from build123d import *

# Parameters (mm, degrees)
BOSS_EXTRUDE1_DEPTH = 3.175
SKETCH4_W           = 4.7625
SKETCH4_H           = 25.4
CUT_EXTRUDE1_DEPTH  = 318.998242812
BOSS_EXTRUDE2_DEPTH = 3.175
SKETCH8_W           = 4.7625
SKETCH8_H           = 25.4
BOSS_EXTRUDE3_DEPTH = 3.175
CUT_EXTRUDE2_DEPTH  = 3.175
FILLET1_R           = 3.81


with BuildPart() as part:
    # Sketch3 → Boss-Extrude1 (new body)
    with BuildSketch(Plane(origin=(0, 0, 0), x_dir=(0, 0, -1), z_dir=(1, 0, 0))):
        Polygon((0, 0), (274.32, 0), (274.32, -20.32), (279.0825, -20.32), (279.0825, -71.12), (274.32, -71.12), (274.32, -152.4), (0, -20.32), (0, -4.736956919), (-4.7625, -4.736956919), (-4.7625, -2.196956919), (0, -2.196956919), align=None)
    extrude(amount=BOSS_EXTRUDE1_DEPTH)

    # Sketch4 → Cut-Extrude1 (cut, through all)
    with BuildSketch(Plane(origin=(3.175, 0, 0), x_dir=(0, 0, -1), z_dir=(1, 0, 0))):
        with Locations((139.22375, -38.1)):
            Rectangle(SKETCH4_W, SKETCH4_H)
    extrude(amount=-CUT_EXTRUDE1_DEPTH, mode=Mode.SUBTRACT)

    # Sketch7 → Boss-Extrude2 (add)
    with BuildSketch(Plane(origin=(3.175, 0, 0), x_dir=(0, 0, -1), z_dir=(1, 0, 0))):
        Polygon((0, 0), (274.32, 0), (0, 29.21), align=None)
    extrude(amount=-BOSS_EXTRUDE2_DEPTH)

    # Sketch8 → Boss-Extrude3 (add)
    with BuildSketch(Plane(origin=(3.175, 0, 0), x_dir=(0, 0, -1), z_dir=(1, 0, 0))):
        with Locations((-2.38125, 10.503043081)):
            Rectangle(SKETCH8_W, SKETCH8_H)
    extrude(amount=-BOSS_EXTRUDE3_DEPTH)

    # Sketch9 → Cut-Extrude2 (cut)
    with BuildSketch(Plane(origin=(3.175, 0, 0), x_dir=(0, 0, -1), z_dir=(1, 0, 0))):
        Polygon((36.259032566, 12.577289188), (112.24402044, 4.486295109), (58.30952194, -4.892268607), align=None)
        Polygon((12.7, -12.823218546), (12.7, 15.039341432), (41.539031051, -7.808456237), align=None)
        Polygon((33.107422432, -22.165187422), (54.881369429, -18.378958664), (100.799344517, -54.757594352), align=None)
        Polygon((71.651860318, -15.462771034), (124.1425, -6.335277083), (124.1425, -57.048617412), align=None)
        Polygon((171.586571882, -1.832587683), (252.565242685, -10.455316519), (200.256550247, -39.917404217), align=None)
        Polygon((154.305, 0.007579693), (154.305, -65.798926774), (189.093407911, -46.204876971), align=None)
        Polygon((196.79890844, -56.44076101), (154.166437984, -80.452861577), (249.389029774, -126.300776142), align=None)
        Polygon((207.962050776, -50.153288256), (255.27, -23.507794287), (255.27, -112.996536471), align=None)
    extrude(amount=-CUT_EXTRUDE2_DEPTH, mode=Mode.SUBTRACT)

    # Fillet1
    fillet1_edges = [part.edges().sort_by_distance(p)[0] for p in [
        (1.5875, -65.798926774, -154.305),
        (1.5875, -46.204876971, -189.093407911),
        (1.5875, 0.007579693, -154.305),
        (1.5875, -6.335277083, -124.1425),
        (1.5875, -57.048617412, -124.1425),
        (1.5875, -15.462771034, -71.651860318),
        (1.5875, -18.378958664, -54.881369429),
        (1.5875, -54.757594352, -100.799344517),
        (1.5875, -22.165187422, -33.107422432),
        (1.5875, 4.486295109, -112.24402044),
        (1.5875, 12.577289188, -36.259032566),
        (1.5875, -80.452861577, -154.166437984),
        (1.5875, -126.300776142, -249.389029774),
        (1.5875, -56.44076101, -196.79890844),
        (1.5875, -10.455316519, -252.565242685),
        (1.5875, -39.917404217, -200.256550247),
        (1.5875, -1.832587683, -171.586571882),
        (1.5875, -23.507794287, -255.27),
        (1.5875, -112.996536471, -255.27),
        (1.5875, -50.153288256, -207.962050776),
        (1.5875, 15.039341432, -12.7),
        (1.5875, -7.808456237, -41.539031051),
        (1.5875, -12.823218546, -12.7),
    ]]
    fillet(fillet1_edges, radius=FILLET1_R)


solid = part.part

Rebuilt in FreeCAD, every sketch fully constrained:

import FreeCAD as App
import Part
import Sketcher
Q = App.Units.Quantity


def edges_at(feature, points):
    """Names of the edges that pass closest to the given points."""
    edges = feature.Shape.Edges
    near = lambda p: min(range(len(edges)), key=lambda i: edges[i].distToShape(Part.Vertex(*p))[0])
    return sorted({f"Edge{near(p) + 1}" for p in points})


def add_polygon(sketch, points):
    """Adds a closed chain of lines whose ends are joined by coincident constraints."""
    first, n = sketch.GeometryCount, len(points)
    for a, b in zip(points, points[1:] + points[:1]):
        sketch.addGeometry(Part.LineSegment(App.Vector(*a, 0), App.Vector(*b, 0)), False)
    for i in range(n):
        sketch.addConstraint(Sketcher.Constraint("Coincident", first + i, 2, first + (i + 1) % n, 1))

doc = App.newDocument("Part")
body = doc.addObject("PartDesign::Body", "Body")

# Sketch on YZ plane
sketch1 = body.newObject("Sketcher::SketchObject", "Sketch")
sketch1.AttachmentSupport = (doc.getObject("YZ_Plane"), [""])
sketch1.MapMode = "FlatFace"
add_polygon(sketch1, [(0, -274.3), (0, 0), (-2.2, 0), (-2.2, 4.8), (-4.7, 4.8), (-4.7, 0), (-20.3, 0), (-152.4, -274.3), (-71.1, -274.3), (-71.1, -279.1), (-20.3, -279.1), (-20.3, -274.3)])  # lines 0-11
sketch1.addConstraint([
    Sketcher.Constraint("Vertical", 0),
    Sketcher.Constraint("Horizontal", 1),
    Sketcher.Constraint("Vertical", 2),
    Sketcher.Constraint("Horizontal", 3),
    Sketcher.Constraint("Vertical", 4),
    Sketcher.Constraint("Horizontal", 5),
    Sketcher.Constraint("Horizontal", 7),
    Sketcher.Constraint("Vertical", 8),
    Sketcher.Constraint("Horizontal", 9),
    Sketcher.Constraint("Vertical", 10),
    Sketcher.Constraint("Horizontal", 11),
    Sketcher.Constraint("Coincident", 0, 2, -1, 1),
    Sketcher.Constraint("PointOnObject", 4, 2, -1),
    Sketcher.Constraint("Horizontal", 7, 2, 10, 2),
    Sketcher.Constraint("Vertical", 5, 2, 9, 2),
    Sketcher.Constraint("Equal", 4, 8),
    Sketcher.Constraint("DistanceX", 9, 1, 9, 2, Q("2 in")),
    Sketcher.Constraint("DistanceX", 3, 2, 3, 1, Q("0.1 in")),
    Sketcher.Constraint("DistanceX", 7, 1, 7, 2, Q("3.2 in")),
    Sketcher.Constraint("DistanceX", 11, 1, 11, 2, Q("0.8 in")),
    Sketcher.Constraint("DistanceY", 0, 1, 0, 2, Q("10.8 in")),
    Sketcher.Constraint("DistanceY", 2, 1, 2, 2, Q("0.1875 in")),
    Sketcher.Constraint("DistanceX", 1, 2, 1, 1, 2.196957),
])
pad1 = body.newObject("PartDesign::Pad", "Pad")
pad1.Profile = sketch1
pad1.Length = Q("0.125 in")

# Sketch on YZ plane
sketch2 = body.newObject("Sketcher::SketchObject", "Sketch001")
sketch2.AttachmentSupport = (doc.getObject("YZ_Plane"), [""])
sketch2.MapMode = "FlatFace"
sketch2.AttachmentOffset = App.Placement(App.Vector(0, 0, 0.125 * 25.4), App.Rotation())
add_polygon(sketch2, [(-25.4, -136.8), (-50.8, -136.8), (-50.8, -141.6), (-25.4, -141.6)])  # lines 0-3
sketch2.addConstraint([
    Sketcher.Constraint("Horizontal", 0),
    Sketcher.Constraint("Vertical", 1),
    Sketcher.Constraint("Horizontal", 2),
    Sketcher.Constraint("Vertical", 3),
    Sketcher.Constraint("DistanceX", 0, 2, 0, 1, Q("1 in")),
    Sketcher.Constraint("DistanceX", 0, 2, -1, 1, Q("2 in")),
    Sketcher.Constraint("DistanceY", 1, 2, 1, 1, Q("0.1875 in")),
    Sketcher.Constraint("DistanceY", 1, 2, -1, 1, Q("5.575 in")),
])
pocket1 = body.newObject("PartDesign::Pocket", "Pocket")
pocket1.Profile = sketch2
pocket1.Type = "ThroughAll"

# Sketch on YZ plane
sketch3 = body.newObject("Sketcher::SketchObject", "Sketch002")
sketch3.AttachmentSupport = (doc.getObject("YZ_Plane"), [""])
sketch3.MapMode = "FlatFace"
sketch3.AttachmentOffset = App.Placement(App.Vector(0, 0, 0.125 * 25.4), App.Rotation())
add_polygon(sketch3, [(0, 0), (0, -274), (29, 0)])  # lines 0-2
sketch3.addConstraint([
    Sketcher.Constraint("Vertical", 0),
    Sketcher.Constraint("Horizontal", 2),
    Sketcher.Constraint("Coincident", 2, 2, -1, 1),
    Sketcher.Constraint("DistanceY", 0, 2, 0, 1, Q("10.8 in")),
    Sketcher.Constraint("DistanceX", 2, 2, 2, 1, Q("1.15 in")),
])
pad2 = body.newObject("PartDesign::Pad", "Pad001")
pad2.Profile = sketch3
pad2.Length = Q("0.125 in")
pad2.Reversed = True

# Sketch on YZ plane
sketch4 = body.newObject("Sketcher::SketchObject", "Sketch003")
sketch4.AttachmentSupport = (doc.getObject("YZ_Plane"), [""])
sketch4.MapMode = "FlatFace"
sketch4.AttachmentOffset = App.Placement(App.Vector(0, 0, 0.125 * 25.4), App.Rotation())
add_polygon(sketch4, [(23.2, 4.8), (-2.2, 4.8), (-2.2, 0), (23.2, 0)])  # lines 0-3
sketch4.addConstraint([
    Sketcher.Constraint("Horizontal", 0),
    Sketcher.Constraint("Vertical", 1),
    Sketcher.Constraint("Horizontal", 2),
    Sketcher.Constraint("Vertical", 3),
    Sketcher.Constraint("PointOnObject", 1, 2, -1),
    Sketcher.Constraint("DistanceX", 0, 2, 0, 1, Q("1 in")),
    Sketcher.Constraint("DistanceY", 1, 2, 1, 1, Q("0.1875 in")),
    Sketcher.Constraint("DistanceX", 0, 2, -1, 1, 2.196957),
])
pad3 = body.newObject("PartDesign::Pad", "Pad002")
pad3.Profile = sketch4
pad3.Length = Q("0.125 in")
pad3.Reversed = True

# Sketch on YZ plane
sketch5 = body.newObject("Sketcher::SketchObject", "Sketch004")
sketch5.AttachmentSupport = (doc.getObject("YZ_Plane"), [""])
sketch5.MapMode = "FlatFace"
sketch5.AttachmentOffset = App.Placement(App.Vector(0, 0, 0.125 * 25.4), App.Rotation())
add_polygon(sketch5, [(4, -112), (13, -36), (-5, -58)])  # lines 0-2
add_polygon(sketch5, [(15, -13), (-13, -13), (-8, -42)])  # lines 3-5
add_polygon(sketch5, [(-18, -55), (-22, -33), (-55, -101)])  # lines 6-8
add_polygon(sketch5, [(-6, -124), (-15, -72), (-57, -124)])  # lines 9-11
add_polygon(sketch5, [(-10, -253), (-2, -172), (-40, -200)])  # lines 12-14
add_polygon(sketch5, [(0, -154), (-66, -154), (-46, -189)])  # lines 15-17
add_polygon(sketch5, [(-56, -197), (-80, -154), (-126, -249)])  # lines 18-20
add_polygon(sketch5, [(-24, -255), (-50, -208), (-113, -255)])  # lines 21-23
sketch5.addConstraint([
    Sketcher.Constraint("Horizontal", 3),
    Sketcher.Constraint("Horizontal", 11),
    Sketcher.Constraint("Horizontal", 15),
    Sketcher.Constraint("Horizontal", 23),
    Sketcher.Constraint("Parallel", 2, 4),
    Sketcher.Constraint("Parallel", 1, 5),
    Sketcher.Constraint("Parallel", 4, 6),
    Sketcher.Constraint("Parallel", 5, 8),
    Sketcher.Constraint("Parallel", 6, 9),
    Sketcher.Constraint("Parallel", 8, 10),
    Sketcher.Constraint("Parallel", 0, 12),
    Sketcher.Constraint("Parallel", 14, 16),
    Sketcher.Constraint("Parallel", 13, 17),
    Sketcher.Constraint("Parallel", 16, 18),
    Sketcher.Constraint("Parallel", 7, 19),
    Sketcher.Constraint("Parallel", 17, 20),
    Sketcher.Constraint("Parallel", 18, 21),
    Sketcher.Constraint("Parallel", 20, 22),
    Sketcher.Constraint("DistanceY", 3, 2, -1, 1, Q("0.5 in")),
    Sketcher.Constraint("DistanceY", 22, 2, -1, 1, Q("10.05 in")),
    Sketcher.Constraint("DistanceY", 15, 2, -1, 1, Q("6.075 in")),
    Sketcher.Constraint("DistanceX", 8, 2, 0, 2, Q("1.2187499 in")),
    Sketcher.Constraint("DistanceY", 15, 2, 10, 2, Q("1.1875 in")),
    Sketcher.Constraint("DistanceX", -1, 1, 5, 2, Q("0.5921001 in")),
    Sketcher.Constraint("Distance", 1, 28.132002),
    Sketcher.Constraint("DistanceX", 3, 2, 3, 1, 27.86256),
    Sketcher.Constraint("DistanceX", 11, 1, 11, 2, 50.71334),
    Sketcher.Constraint("DistanceY", 2, 2, 1, 2, 53.934498),
    Sketcher.Constraint("DistanceY", 4, 2, 0, 2, 5.279998),
    Sketcher.Constraint("DistanceY", 1, 2, 6, 2, 25.2021),
    Sketcher.Constraint("DistanceX", 13, 2, 2, 2, 44.403699),
    Sketcher.Constraint("DistanceX", 10, 2, 14, 2, 46.593301),
    Sketcher.Constraint("DistanceX", 19, 2, 16, 2, 80.095899),
    Sketcher.Constraint("DistanceY", 20, 2, 16, 2, 7.705501),
    Sketcher.Constraint("DistanceX", 18, 2, 20, 2, 24.012101),
    Sketcher.Constraint("DistanceY", 21, 2, 13, 2, 7.705501),
    Sketcher.Constraint("Distance", 5, 36.79282),
    Sketcher.Constraint("Distance", 7, 75.12963),
    Sketcher.Constraint("Distance", 9, 53.278311),
    Sketcher.Constraint("Distance", 18, 48.929628),
    Sketcher.Constraint("DistanceX", 15, 2, 15, 1, 65.806506),
    Sketcher.Constraint("DistanceX", 23, 1, 23, 2, 89.488742),
    Sketcher.Constraint("DistanceX", -1, 1, 0, 2, 12.577289),
    Sketcher.Constraint("DistanceY", 8, 2, -1, 1, 54.881369),
    Sketcher.Constraint("DistanceX", 9, 2, -1, 1, 15.462771),
    Sketcher.Constraint("DistanceY", 12, 2, -1, 1, 171.586572),
    Sketcher.Constraint("DistanceX", -1, 1, 17, 2, 0.00758),
    Sketcher.Constraint("DistanceX", 21, 2, -1, 1, 50.153288),
])
pocket2 = body.newObject("PartDesign::Pocket", "Pocket001")
pocket2.Profile = sketch5
pocket2.Length = Q("0.125 in")
doc.recompute()

fillet = body.newObject("PartDesign::Fillet", "Fillet")
fillet.Base = (pocket2, edges_at(pocket2, [
    (1.587, -65.799, -154.305),
    (1.587, -46.205, -189.093),
    (1.587, 0.008, -154.305),
    (1.587, -6.335, -124.142),
    (1.587, -57.049, -124.142),
    (1.587, -15.463, -71.652),
    (1.587, -18.379, -54.881),
    (1.587, -54.758, -100.799),
    (1.587, -22.165, -33.107),
    (1.587, 4.486, -112.244),
    (1.587, 12.577, -36.259),
    (1.587, -80.453, -154.166),
    (1.587, -126.301, -249.389),
    (1.587, -56.441, -196.799),
    (1.587, -10.455, -252.565),
    (1.587, -39.917, -200.257),
    (1.587, -1.833, -171.587),
    (1.587, -23.508, -255.27),
    (1.587, -112.997, -255.27),
    (1.587, -50.153, -207.962),
    (1.587, 15.039, -12.7),
    (1.587, -7.808, -41.539),
    (1.587, -12.823, -12.7),
]))
fillet.Radius = Q("0.15 in")

doc.recompute()
